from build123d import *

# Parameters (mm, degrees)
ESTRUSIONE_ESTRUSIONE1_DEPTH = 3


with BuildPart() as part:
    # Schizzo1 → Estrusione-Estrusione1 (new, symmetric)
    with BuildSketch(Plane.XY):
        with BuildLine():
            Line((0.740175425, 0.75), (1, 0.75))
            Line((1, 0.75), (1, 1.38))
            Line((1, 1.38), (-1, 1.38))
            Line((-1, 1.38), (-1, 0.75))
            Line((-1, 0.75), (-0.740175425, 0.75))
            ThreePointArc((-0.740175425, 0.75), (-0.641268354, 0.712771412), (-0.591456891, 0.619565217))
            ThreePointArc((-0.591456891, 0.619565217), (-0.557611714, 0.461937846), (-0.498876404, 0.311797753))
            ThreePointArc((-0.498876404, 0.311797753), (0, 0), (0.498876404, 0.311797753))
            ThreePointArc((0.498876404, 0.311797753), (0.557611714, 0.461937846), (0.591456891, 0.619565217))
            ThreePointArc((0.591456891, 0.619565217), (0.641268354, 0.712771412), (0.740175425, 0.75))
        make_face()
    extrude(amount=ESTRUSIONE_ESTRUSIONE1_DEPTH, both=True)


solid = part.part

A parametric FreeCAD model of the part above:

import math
import FreeCAD as App
import Part
import Sketcher
from FreeCAD import Vector

doc = App.newDocument("Part")
params = doc.addObject("Spreadsheet::Sheet", "Params")
for row, (alias, value) in enumerate([
    ("sketch1_radius", "1 mm"),
    ("sketch1_width", "2 mm"),
    ("sketch1_radius2", "0.15 mm"),
    ("sketch1_height", "0.63 mm"),
    ("pad1_length", "6 mm"),
], start=1):
    params.set(f"A{row}", alias)
    params.set(f"B{row}", "=" + value)
    params.setAlias(f"B{row}", alias)

body = doc.addObject("PartDesign::Body", "Body")

sketch1 = body.newObject("Sketcher::SketchObject", "Sketch")
sketch1.AttachmentSupport = (doc.getObject("XY_Plane"), [""])
sketch1.MapMode = "FlatFace"
sketch1.addGeometry(Part.LineSegment(Vector(0.740175, 0.75, 0), Vector(1, 0.75, 0)), False)
sketch1.addGeometry(Part.LineSegment(Vector(1, 0.75, 0), Vector(1, 1.38, 0)), False)
sketch1.addGeometry(Part.LineSegment(Vector(1, 1.38, 0), Vector(-1, 1.38, 0)), False)
sketch1.addGeometry(Part.LineSegment(Vector(-1, 1.38, 0), Vector(-1, 0.75, 0)), False)
sketch1.addGeometry(Part.LineSegment(Vector(-1, 0.75, 0), Vector(-0.740175, 0.75, 0)), False)
sketch1.addGeometry(Part.ArcOfCircle(Part.Circle(Vector(-0.740175, 0.6, 0), Vector(0, 0, 1), 0.15), math.radians(7.494717), math.radians(90)), False)
sketch1.addGeometry(Part.ArcOfCircle(Part.Circle(Vector(0.4, 0.75, 0), Vector(0, 0, 1), 1), math.radians(-172.505283), math.radians(-154.010766)), False)
sketch1.addGeometry(Part.ArcOfCircle(Part.Circle(Vector(0, 0.555, 0), Vector(0, 0, 1), 0.555), math.radians(-154.010767), math.radians(-25.989233)), False)
sketch1.addGeometry(Part.ArcOfCircle(Part.Circle(Vector(-0.4, 0.75, 0), Vector(0, 0, 1), 1), math.radians(-25.989234), math.radians(-7.494717)), False)
sketch1.addGeometry(Part.ArcOfCircle(Part.Circle(Vector(0.740175, 0.6, 0), Vector(0, 0, 1), 0.15), math.radians(90), math.radians(172.505283)), False)
sketch1.addConstraint(Sketcher.Constraint("Coincident", 0, 2, 1, 1))
sketch1.addConstraint(Sketcher.Constraint("Coincident", 1, 2, 2, 1))
sketch1.addConstraint(Sketcher.Constraint("Coincident", 2, 2, 3, 1))
sketch1.addConstraint(Sketcher.Constraint("Coincident", 3, 2, 4, 1))
sketch1.addConstraint(Sketcher.Constraint("Tangent", 4, 2, 5, 2))
sketch1.addConstraint(Sketcher.Constraint("Tangent", 5, 1, 6, 1))
sketch1.addConstraint(Sketcher.Constraint("Tangent", 6, 2, 7, 1))
sketch1.addConstraint(Sketcher.Constraint("Tangent", 7, 2, 8, 1))
sketch1.addConstraint(Sketcher.Constraint("Tangent", 8, 2, 9, 2))
sketch1.addConstraint(Sketcher.Constraint("Tangent", 9, 1, 0, 1))
sketch1.addConstraint(Sketcher.Constraint("Horizontal", 0))
sketch1.addConstraint(Sketcher.Constraint("Vertical", 1))
sketch1.addConstraint(Sketcher.Constraint("Horizontal", 2))
sketch1.addConstraint(Sketcher.Constraint("Vertical", 3))
sketch1.addConstraint(Sketcher.Constraint("Horizontal", 4))
sketch1.addConstraint(Sketcher.Constraint("Equal", 6, 8))
sketch1.addConstraint(Sketcher.Constraint("Equal", 5, 9))
sketch1.addConstraint(Sketcher.Constraint("Symmetric", 6, 3, 8, 3, -2))
sketch1.addConstraint(Sketcher.Constraint("Symmetric", 0, 2, 3, 2, -2))
sketch1.addConstraint(Sketcher.Constraint("Horizontal", 8, 3, 0, 2))
sketch1.addConstraint(Sketcher.Constraint("Radius", 6, 1.0))
sketch1.addConstraint(Sketcher.Constraint("DistanceX", 2, 2, 2, 1, 2.0))
sketch1.addConstraint(Sketcher.Constraint("Radius", 5, 0.15))
sketch1.addConstraint(Sketcher.Constraint("Radius", 7, 0.555))
sketch1.addConstraint(Sketcher.Constraint("DistanceY", 1, 1, 1, 2, 0.63))
sketch1.addConstraint(Sketcher.Constraint("DistanceY", -1, 1, 5, 3, 0.6))
sketch1.addConstraint(Sketcher.Constraint("DistanceX", -1, 1, 6, 3, 0.4))
sketch1.setExpression("Constraints[20]", "Params.sketch1_radius")
sketch1.setExpression("Constraints[21]", "Params.sketch1_width")
sketch1.setExpression("Constraints[22]", "Params.sketch1_radius2")
sketch1.setExpression("Constraints[24]", "Params.sketch1_height")
pad1 = body.newObject("PartDesign::Pad", "Pad")
pad1.Profile = sketch1
pad1.setExpression("Length", "Params.pad1_length")
pad1.Midplane = True

doc.recompute()
